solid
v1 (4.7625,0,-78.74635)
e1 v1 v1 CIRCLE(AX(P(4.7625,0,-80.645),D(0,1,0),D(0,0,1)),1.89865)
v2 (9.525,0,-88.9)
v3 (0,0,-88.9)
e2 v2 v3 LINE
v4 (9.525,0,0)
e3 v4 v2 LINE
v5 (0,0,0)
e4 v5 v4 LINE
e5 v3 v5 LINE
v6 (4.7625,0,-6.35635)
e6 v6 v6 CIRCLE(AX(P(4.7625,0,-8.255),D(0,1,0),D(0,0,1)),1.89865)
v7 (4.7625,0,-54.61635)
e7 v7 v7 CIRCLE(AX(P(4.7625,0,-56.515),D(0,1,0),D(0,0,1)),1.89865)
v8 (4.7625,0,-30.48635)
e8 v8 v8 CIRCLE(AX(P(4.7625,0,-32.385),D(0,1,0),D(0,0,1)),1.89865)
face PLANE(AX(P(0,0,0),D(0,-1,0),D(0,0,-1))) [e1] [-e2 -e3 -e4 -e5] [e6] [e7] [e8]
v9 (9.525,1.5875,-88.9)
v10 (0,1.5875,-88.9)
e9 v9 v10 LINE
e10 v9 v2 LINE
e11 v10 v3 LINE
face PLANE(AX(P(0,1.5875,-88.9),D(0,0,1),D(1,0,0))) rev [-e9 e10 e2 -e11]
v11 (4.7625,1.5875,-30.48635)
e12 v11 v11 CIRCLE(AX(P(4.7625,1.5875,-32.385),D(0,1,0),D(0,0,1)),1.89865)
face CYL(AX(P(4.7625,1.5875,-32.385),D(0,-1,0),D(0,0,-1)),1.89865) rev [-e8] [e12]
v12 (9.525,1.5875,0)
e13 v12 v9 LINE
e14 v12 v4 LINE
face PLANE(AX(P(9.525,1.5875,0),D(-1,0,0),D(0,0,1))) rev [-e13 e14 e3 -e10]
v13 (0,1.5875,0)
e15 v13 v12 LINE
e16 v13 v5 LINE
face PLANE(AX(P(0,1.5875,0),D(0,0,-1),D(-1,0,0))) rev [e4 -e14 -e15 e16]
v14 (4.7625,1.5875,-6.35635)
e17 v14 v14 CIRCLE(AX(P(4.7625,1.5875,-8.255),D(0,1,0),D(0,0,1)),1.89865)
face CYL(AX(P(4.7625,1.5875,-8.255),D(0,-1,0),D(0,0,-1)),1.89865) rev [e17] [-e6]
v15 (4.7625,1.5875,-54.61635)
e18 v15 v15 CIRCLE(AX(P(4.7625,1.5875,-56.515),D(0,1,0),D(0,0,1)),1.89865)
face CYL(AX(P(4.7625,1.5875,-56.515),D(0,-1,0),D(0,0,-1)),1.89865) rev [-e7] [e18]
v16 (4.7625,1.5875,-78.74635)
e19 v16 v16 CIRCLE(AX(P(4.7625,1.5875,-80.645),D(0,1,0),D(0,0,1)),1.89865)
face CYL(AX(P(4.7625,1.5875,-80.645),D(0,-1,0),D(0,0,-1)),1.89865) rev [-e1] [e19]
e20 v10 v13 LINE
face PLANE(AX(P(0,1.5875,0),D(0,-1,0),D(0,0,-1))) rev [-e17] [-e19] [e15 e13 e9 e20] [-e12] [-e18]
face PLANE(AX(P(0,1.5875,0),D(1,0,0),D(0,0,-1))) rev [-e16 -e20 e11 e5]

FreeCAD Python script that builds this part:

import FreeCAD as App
import Part
import Sketcher
Q = App.Units.Quantity

doc = App.newDocument("Part")
params = doc.addObject("Spreadsheet::Sheet", "Params")
for row, (alias, value) in enumerate([
    ("sketch1_height", "3.5 in"),
    ("sketch1_width", "0.375 in"),
    ("pad1_length", "0.0625 in"),
], start=1):
    params.set(f"A{row}", alias)
    params.set(f"B{row}", "=" + value)
    params.setAlias(f"B{row}", alias)

body = doc.addObject("PartDesign::Body", "Body")

# Sketch on XZ plane
sketch1 = body.newObject("Sketcher::SketchObject", "Sketch")
sketch1.AttachmentSupport = (doc.getObject("XZ_Plane"), [""])
sketch1.MapMode = "FlatFace"
sketch1.addGeometry([
    Part.LineSegment(App.Vector(0, -88.9, 0), App.Vector(0, 0, 0)),  # 0
    Part.LineSegment(App.Vector(0, 0, 0), App.Vector(9.5, 0, 0)),  # 1
    Part.LineSegment(App.Vector(9.5, 0, 0), App.Vector(9.5, -88.9, 0)),  # 2
    Part.LineSegment(App.Vector(9.5, -88.9, 0), App.Vector(0, -88.9, 0)),  # 3
    Part.Circle(App.Vector(4.8, -8.3, 0), App.Vector(0, 0, 1), 1.9),  # 4
    Part.Circle(App.Vector(4.8, -32.4, 0), App.Vector(0, 0, 1), 1.9),  # 5
    Part.Circle(App.Vector(4.8, -56.5, 0), App.Vector(0, 0, 1), 1.9),  # 6
    Part.Circle(App.Vector(4.8, -80.6, 0), App.Vector(0, 0, 1), 1.9),  # 7
], False)
sketch1.addConstraint([
    Sketcher.Constraint("Coincident", 0, 2, 1, 1),
    Sketcher.Constraint("Coincident", 1, 2, 2, 1),
    Sketcher.Constraint("Coincident", 2, 2, 3, 1),
    Sketcher.Constraint("Coincident", 3, 2, 0, 1),
    Sketcher.Constraint("Vertical", 0),
    Sketcher.Constraint("Horizontal", 1),
    Sketcher.Constraint("Vertical", 2),
    Sketcher.Constraint("Horizontal", 3),
    Sketcher.Constraint("Coincident", 0, 2, -1, 1),
    Sketcher.Constraint("Equal", 4, 5),
    Sketcher.Constraint("Equal", 5, 6),
    Sketcher.Constraint("Equal", 6, 7),
    Sketcher.Constraint("Vertical", 4, 3, 5, 3),
    Sketcher.Constraint("Vertical", 5, 3, 6, 3),
    Sketcher.Constraint("Vertical", 6, 3, 7, 3),
    Sketcher.Constraint("DistanceY", 0, 1, 0, 2, Q("3.5 in")),
    Sketcher.Constraint("Diameter", 4, Q("0.1495 in")),
    Sketcher.Constraint("DistanceY", 6, 3, 4, 3, Q("1.9 in")),
    Sketcher.Constraint("DistanceY", 7, 3, 5, 3, Q("1.9 in")),
    Sketcher.Constraint("DistanceX", 1, 1, 1, 2, Q("0.375 in")),
    Sketcher.Constraint("DistanceY", 5, 3, 4, 3, Q("0.95 in")),
    Sketcher.Constraint("DistanceX", -1, 1, 4, 3, Q("0.1875 in")),
    Sketcher.Constraint("DistanceY", 4, 3, -1, 1, Q("0.325 in")),
])
sketch1.setExpression("Constraints[15]", "Params.sketch1_height")
sketch1.setExpression("Constraints[19]", "Params.sketch1_width")
pad1 = body.newObject("PartDesign::Pad", "Pad")
pad1.Profile = sketch1
pad1.setExpression("Length", "Params.pad1_length")
pad1.Reversed = True

doc.recompute()
